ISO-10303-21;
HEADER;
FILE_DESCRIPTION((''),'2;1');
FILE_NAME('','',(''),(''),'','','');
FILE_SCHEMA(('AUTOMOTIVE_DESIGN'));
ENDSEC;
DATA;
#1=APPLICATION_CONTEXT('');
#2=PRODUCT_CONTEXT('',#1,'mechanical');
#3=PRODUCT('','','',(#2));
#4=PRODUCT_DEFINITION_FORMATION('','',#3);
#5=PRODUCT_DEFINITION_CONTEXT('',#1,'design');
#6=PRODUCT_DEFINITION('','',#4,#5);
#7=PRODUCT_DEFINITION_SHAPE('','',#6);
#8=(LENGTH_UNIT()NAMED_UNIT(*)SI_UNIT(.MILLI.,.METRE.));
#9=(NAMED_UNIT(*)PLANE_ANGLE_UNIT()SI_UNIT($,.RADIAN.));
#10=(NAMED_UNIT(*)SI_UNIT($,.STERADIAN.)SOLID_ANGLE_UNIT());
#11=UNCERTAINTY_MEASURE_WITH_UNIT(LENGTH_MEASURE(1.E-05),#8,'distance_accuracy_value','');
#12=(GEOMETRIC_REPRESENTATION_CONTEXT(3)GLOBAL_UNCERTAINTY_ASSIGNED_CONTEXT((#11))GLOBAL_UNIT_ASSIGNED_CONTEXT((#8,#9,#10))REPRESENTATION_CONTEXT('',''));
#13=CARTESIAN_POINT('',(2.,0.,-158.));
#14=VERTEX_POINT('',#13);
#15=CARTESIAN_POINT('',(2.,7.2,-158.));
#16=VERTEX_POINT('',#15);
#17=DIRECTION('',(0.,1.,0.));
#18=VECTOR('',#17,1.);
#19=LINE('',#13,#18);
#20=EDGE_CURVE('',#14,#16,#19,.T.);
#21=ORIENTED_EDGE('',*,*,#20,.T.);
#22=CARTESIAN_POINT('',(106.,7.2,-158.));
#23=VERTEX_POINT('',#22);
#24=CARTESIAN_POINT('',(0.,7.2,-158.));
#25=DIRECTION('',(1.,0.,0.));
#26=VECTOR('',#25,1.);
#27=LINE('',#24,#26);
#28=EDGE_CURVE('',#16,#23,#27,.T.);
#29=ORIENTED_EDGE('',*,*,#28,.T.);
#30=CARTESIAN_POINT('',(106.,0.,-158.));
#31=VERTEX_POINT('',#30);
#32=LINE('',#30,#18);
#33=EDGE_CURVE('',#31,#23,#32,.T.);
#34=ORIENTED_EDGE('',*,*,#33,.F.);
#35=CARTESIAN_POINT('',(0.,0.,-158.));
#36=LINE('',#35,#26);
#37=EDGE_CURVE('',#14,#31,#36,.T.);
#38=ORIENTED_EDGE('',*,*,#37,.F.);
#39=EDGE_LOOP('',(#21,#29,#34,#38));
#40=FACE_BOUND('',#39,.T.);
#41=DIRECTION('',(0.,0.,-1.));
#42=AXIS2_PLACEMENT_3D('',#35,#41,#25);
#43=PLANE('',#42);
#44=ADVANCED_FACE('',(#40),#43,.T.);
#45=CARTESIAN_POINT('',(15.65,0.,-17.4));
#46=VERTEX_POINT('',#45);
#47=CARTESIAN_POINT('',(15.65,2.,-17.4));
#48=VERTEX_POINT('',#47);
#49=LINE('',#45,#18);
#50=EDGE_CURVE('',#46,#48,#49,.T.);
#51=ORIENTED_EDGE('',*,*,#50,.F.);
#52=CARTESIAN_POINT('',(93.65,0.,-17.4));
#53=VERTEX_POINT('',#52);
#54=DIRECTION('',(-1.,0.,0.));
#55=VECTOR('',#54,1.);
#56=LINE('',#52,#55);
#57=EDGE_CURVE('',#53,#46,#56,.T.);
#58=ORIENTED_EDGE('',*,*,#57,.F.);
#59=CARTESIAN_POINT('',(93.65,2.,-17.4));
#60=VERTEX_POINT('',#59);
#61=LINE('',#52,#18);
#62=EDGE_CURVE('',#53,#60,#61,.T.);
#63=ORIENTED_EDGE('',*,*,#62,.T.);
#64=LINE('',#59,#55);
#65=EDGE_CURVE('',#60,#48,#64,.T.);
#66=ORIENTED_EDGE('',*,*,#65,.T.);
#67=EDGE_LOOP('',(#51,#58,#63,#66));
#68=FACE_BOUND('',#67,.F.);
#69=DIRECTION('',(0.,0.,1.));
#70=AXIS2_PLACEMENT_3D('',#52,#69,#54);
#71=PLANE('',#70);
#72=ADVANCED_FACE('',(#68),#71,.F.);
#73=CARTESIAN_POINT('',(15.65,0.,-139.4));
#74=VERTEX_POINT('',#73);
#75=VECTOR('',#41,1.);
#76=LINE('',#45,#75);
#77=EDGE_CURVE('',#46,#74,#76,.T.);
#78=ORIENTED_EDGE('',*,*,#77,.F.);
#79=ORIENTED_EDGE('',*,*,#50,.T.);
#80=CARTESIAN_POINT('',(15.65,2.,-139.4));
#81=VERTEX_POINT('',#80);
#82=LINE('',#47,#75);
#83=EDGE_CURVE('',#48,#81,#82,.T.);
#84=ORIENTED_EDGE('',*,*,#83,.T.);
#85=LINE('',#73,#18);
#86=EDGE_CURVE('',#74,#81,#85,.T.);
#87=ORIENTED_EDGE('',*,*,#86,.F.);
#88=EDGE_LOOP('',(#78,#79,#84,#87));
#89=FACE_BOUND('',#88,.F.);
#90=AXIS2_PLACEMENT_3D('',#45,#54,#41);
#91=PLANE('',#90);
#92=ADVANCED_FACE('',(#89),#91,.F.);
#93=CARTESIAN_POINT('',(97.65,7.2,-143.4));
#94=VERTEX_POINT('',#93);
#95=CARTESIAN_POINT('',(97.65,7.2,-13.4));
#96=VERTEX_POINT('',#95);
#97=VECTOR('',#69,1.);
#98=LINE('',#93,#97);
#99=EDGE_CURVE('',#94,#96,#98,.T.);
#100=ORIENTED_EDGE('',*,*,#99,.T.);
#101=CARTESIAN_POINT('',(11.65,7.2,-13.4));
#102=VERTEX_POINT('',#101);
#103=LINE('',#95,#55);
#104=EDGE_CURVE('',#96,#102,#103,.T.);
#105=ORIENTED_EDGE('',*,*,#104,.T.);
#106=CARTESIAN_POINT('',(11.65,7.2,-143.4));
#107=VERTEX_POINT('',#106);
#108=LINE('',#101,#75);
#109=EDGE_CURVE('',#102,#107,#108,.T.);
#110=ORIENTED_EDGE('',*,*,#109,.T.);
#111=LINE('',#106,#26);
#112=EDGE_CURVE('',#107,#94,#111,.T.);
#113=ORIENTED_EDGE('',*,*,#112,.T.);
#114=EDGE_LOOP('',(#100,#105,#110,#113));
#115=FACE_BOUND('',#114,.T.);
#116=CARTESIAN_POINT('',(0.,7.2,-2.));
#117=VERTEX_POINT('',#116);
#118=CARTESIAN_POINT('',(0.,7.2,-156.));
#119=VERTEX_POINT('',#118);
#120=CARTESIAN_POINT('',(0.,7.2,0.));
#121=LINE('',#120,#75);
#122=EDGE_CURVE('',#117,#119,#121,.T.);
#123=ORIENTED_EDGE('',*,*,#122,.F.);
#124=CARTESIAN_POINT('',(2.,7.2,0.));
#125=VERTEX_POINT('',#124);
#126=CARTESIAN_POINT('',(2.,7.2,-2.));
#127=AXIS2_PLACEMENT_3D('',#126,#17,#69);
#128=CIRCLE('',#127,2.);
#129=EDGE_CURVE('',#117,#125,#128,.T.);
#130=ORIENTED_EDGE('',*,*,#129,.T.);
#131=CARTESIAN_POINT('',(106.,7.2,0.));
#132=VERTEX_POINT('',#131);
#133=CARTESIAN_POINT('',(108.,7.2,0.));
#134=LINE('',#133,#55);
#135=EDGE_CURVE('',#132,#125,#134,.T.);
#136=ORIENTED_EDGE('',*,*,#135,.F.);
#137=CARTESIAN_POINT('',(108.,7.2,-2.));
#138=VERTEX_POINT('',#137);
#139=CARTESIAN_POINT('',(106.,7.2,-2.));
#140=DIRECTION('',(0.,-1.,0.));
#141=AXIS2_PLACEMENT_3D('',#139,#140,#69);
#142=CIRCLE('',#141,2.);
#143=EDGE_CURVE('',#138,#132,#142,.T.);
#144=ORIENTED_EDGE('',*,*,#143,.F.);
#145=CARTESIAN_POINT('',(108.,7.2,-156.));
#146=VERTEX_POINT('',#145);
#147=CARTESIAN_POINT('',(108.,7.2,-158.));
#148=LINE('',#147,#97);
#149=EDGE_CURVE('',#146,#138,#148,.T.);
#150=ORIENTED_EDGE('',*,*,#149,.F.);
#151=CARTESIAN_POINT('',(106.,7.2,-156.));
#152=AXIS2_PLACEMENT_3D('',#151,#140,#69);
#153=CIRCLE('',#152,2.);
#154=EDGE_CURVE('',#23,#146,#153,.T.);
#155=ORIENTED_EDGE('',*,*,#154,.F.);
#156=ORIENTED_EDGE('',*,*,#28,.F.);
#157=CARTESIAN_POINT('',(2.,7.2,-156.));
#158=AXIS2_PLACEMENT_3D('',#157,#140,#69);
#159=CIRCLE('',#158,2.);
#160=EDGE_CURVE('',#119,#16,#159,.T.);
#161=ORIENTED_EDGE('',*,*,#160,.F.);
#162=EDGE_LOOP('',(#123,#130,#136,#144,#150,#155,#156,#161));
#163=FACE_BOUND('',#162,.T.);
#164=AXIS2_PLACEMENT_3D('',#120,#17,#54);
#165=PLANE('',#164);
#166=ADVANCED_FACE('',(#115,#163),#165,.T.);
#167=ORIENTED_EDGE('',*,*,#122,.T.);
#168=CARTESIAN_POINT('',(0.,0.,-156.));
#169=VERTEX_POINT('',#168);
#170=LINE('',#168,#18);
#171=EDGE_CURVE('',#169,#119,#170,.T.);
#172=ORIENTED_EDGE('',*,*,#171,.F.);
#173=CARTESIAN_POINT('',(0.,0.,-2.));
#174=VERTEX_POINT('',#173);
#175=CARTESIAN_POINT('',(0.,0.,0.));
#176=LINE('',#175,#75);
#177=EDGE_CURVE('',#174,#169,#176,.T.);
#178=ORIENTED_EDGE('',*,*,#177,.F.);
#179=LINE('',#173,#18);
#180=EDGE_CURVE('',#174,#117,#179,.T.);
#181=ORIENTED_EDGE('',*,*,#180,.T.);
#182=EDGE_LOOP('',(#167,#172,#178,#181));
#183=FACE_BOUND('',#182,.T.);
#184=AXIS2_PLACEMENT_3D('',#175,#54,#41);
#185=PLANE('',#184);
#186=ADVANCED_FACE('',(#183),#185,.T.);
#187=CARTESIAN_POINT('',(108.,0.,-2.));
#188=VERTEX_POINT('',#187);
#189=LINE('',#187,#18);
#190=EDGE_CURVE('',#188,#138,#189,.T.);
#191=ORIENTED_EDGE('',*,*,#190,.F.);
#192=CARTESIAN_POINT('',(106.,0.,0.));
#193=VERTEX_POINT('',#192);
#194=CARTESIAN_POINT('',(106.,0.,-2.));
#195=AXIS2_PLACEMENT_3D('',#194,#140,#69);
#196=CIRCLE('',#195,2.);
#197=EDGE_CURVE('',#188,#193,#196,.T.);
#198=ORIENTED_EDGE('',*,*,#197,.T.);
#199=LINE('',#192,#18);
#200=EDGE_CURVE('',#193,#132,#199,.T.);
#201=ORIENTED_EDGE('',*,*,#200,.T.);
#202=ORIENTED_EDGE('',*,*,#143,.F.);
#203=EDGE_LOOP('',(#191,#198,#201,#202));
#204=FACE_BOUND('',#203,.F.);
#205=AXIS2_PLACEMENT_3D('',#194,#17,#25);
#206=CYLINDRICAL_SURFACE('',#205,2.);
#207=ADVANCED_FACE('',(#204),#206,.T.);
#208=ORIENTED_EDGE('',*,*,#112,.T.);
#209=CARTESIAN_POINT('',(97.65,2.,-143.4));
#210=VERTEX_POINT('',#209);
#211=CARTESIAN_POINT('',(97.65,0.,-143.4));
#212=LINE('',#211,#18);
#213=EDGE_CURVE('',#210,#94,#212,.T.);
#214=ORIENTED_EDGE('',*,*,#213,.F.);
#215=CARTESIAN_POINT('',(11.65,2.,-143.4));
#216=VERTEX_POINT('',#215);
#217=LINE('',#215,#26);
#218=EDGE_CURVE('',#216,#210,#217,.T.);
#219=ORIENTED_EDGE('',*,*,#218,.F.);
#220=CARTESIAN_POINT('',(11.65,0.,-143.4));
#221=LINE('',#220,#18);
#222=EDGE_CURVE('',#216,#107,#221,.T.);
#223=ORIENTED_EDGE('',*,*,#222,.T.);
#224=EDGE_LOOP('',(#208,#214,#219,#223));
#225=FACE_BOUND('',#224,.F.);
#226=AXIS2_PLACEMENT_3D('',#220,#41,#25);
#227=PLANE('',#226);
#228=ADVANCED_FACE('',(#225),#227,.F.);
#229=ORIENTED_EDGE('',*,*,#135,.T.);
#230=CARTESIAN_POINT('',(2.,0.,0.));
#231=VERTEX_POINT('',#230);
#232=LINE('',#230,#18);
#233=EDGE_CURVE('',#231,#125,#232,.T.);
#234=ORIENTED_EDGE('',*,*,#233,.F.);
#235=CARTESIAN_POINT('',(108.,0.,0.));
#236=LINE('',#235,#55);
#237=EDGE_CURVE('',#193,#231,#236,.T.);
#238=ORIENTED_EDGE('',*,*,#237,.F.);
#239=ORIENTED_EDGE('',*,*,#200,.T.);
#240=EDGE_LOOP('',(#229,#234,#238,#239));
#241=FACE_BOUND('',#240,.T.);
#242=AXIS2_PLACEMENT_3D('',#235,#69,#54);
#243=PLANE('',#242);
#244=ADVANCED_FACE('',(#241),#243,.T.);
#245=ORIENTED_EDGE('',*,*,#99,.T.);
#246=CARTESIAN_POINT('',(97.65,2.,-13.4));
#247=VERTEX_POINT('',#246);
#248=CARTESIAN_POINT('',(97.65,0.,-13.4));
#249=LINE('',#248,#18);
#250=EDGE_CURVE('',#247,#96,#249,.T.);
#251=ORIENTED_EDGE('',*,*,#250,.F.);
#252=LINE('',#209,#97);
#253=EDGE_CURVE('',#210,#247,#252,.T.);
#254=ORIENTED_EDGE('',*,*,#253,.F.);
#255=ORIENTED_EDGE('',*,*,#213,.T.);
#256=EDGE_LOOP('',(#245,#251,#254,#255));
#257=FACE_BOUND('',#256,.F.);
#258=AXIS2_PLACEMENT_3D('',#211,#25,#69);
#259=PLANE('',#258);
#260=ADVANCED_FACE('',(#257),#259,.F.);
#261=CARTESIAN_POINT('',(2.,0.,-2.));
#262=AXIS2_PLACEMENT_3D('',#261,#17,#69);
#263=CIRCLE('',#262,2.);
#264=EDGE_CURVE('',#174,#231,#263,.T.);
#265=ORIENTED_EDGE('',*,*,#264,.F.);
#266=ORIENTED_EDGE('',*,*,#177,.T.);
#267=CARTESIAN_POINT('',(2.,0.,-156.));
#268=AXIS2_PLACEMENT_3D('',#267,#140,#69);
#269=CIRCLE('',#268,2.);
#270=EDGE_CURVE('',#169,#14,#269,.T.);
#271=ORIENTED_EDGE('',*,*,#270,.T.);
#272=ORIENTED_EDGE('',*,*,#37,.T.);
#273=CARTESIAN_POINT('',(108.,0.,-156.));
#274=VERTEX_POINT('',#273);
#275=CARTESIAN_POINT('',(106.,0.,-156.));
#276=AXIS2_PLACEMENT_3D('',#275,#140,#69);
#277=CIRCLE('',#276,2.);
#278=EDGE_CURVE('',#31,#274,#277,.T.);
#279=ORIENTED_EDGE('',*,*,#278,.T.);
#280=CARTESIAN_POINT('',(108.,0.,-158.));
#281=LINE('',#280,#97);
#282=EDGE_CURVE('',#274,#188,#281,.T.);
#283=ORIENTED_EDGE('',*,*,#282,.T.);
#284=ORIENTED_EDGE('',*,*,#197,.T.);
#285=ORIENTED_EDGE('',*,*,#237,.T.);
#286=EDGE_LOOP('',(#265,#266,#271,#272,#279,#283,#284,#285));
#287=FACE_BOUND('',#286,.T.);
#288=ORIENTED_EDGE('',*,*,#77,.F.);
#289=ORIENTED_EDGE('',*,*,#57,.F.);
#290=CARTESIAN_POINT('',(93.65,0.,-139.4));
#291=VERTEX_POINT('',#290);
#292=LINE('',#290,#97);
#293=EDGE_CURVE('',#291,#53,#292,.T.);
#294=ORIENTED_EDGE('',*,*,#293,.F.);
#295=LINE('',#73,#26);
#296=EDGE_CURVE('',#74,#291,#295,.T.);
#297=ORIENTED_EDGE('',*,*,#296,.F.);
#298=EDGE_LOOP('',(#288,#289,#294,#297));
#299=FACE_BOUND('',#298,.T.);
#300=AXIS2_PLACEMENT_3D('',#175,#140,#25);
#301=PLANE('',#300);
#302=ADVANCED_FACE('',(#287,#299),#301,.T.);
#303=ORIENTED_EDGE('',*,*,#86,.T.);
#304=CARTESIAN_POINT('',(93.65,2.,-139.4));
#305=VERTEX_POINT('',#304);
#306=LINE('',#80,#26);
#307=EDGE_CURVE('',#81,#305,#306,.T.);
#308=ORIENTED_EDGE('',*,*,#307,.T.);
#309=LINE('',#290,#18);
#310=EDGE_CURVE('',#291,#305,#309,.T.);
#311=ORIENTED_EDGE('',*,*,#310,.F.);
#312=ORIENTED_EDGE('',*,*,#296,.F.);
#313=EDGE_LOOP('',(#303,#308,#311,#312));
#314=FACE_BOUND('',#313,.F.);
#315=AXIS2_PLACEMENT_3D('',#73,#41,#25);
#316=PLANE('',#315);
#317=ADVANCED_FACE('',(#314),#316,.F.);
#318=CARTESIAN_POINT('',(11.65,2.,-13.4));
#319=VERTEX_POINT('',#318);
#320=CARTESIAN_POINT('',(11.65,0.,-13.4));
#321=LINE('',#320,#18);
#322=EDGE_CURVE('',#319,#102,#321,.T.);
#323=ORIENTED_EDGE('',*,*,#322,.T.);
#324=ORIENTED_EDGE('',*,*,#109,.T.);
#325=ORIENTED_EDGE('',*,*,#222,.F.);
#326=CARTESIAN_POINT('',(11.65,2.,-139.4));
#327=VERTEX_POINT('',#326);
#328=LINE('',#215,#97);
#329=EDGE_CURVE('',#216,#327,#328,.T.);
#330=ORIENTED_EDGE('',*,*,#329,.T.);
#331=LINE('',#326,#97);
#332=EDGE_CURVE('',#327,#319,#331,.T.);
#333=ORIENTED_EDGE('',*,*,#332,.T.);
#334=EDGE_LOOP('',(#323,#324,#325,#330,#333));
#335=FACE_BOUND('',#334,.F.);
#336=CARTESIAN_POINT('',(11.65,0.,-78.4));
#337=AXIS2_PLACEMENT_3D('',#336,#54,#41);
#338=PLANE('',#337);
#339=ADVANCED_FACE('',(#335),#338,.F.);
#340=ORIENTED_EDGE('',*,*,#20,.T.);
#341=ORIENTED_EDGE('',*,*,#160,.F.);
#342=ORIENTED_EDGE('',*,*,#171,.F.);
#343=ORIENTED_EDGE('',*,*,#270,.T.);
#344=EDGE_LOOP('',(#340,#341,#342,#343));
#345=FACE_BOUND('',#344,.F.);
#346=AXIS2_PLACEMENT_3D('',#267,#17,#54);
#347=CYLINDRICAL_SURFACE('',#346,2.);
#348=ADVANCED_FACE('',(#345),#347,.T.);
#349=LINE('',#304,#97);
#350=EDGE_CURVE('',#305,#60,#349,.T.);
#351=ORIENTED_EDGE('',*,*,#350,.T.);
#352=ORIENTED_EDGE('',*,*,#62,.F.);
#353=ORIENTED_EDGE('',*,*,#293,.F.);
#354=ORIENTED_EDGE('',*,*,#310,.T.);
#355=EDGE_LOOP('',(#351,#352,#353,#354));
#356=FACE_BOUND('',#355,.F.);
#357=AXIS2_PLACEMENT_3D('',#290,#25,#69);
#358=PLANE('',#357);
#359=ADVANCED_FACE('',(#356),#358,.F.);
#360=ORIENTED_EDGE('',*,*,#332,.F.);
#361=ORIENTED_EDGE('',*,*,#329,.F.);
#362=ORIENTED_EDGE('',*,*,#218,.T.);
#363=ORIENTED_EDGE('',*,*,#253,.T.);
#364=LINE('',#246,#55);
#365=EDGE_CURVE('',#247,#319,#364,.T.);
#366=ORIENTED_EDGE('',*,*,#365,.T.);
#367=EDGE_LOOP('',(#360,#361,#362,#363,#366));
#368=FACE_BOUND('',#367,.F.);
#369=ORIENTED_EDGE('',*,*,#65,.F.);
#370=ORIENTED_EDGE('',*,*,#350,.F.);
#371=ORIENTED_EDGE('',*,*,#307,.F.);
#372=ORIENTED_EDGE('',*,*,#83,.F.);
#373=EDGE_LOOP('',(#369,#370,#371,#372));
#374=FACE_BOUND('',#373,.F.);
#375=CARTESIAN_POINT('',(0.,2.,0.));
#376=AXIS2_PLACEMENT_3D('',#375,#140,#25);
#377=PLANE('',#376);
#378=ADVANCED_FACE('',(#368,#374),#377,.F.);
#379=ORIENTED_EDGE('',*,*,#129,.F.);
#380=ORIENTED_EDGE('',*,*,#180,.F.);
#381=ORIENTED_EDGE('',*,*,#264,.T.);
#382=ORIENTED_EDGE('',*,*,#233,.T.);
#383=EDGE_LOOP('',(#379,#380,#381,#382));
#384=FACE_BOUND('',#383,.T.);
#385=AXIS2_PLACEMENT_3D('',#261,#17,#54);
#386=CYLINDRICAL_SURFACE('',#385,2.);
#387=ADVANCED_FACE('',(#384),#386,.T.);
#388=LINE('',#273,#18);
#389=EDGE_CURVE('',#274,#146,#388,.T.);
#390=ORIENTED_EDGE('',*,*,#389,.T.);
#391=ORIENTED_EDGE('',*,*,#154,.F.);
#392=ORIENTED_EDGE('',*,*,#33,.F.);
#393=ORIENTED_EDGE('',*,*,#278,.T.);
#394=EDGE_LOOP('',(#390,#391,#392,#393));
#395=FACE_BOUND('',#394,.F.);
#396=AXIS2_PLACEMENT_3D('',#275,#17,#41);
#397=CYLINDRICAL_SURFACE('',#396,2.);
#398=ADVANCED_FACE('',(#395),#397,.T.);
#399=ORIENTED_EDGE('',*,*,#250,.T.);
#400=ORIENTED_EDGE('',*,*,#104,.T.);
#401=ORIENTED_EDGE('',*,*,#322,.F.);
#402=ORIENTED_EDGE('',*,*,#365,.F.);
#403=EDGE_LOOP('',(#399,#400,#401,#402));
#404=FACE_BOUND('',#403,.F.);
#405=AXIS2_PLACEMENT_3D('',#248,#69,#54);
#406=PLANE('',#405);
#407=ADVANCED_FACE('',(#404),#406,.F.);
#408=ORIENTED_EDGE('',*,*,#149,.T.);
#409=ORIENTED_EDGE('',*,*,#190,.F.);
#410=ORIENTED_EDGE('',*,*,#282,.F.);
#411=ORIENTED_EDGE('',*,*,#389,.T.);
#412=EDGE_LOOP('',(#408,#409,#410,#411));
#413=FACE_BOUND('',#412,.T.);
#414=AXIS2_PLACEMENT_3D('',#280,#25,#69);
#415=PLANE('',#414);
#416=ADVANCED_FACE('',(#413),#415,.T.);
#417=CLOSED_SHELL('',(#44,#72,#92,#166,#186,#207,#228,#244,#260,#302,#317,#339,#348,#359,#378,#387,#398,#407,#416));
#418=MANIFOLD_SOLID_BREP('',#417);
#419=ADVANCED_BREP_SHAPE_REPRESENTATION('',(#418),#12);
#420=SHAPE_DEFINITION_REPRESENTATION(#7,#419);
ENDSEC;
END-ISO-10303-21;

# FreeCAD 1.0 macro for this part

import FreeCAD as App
import Part
import Sketcher
from FreeCAD import Vector
Q = App.Units.Quantity


def edges_at(feature, points):
    """Names of the edges that pass closest to the given points."""
    edges = feature.Shape.Edges
    near = lambda p: min(range(len(edges)), key=lambda i: edges[i].distToShape(Part.Vertex(*p))[0])
    return sorted({f"Edge{near(p) + 1}" for p in points})

doc = App.newDocument("Part")
body = doc.addObject("PartDesign::Body", "Body")

sketch1 = doc.addObject("Sketcher::SketchObject", "Sketch")
body.addObject(sketch1)
sketch1.AttachmentSupport = (doc.XZ_Plane, [""])
sketch1.MapMode = "FlatFace"
sketch1.addGeometry([
    Part.LineSegment(Vector(0, -158, 0), Vector(0, 0, 0)),
    Part.LineSegment(Vector(0, 0, 0), Vector(108, 0, 0)),
    Part.LineSegment(Vector(108, 0, 0), Vector(108, -158, 0)),
    Part.LineSegment(Vector(108, -158, 0), Vector(0, -158, 0)),
    Part.LineSegment(Vector(12, -13, 0), Vector(12, -143, 0)),
    Part.LineSegment(Vector(12, -143, 0), Vector(98, -143, 0)),
    Part.LineSegment(Vector(98, -143, 0), Vector(98, -13, 0)),
    Part.LineSegment(Vector(98, -13, 0), Vector(12, -13, 0)),
], False)
sketch1.addConstraint([
    Sketcher.Constraint("Coincident", 0, 2, 1, 1),
    Sketcher.Constraint("Coincident", 1, 2, 2, 1),
    Sketcher.Constraint("Coincident", 2, 2, 3, 1),
    Sketcher.Constraint("Coincident", 3, 2, 0, 1),
    Sketcher.Constraint("Coincident", 4, 2, 5, 1),
    Sketcher.Constraint("Coincident", 5, 2, 6, 1),
    Sketcher.Constraint("Coincident", 6, 2, 7, 1),
    Sketcher.Constraint("Coincident", 7, 2, 4, 1),
    Sketcher.Constraint("Vertical", 0),
    Sketcher.Constraint("Horizontal", 1),
    Sketcher.Constraint("Vertical", 2),
    Sketcher.Constraint("Horizontal", 3),
    Sketcher.Constraint("Vertical", 4),
    Sketcher.Constraint("Horizontal", 5),
    Sketcher.Constraint("Vertical", 6),
    Sketcher.Constraint("Horizontal", 7),
    Sketcher.Constraint("Coincident", 0, 2, -1, 1),
    Sketcher.Constraint("DistanceX", 1, 1, 1, 2, Q("108 mm")),
    Sketcher.Constraint("DistanceX", 5, 1, 5, 2, Q("86 mm")),
    Sketcher.Constraint("DistanceY", 0, 1, 0, 2, Q("158 mm")),
    Sketcher.Constraint("DistanceY", 4, 2, 4, 1, Q("130 mm")),
    Sketcher.Constraint("DistanceY", 4, 2, -1, 1, Q("143.4 mm")),
    Sketcher.Constraint("DistanceX", -1, 1, 4, 2, Q("11.65 mm")),
])
pad1 = doc.addObject("PartDesign::Pad", "Pad")
body.addObject(pad1)
pad1.Profile = sketch1
pad1.Length = 7.2
pad1.Reversed = True
doc.recompute()

fillet = doc.addObject("PartDesign::Fillet", "Fillet")
body.addObject(fillet)
fillet.Base = (pad1, edges_at(pad1, [
    (108, 3.6, 0),
    (108, 3.6, -158),
    (0, 3.6, 0),
    (0, 3.6, -158),
]))
fillet.Radius = 2

sketch2 = doc.addObject("Sketcher::SketchObject", "Sketch001")
body.addObject(sketch2)
sketch2.AttachmentSupport = (doc.XZ_Plane, [""])
sketch2.MapMode = "FlatFace"
sketch2.addGeometry([
    Part.LineSegment(Vector(11.7, -139.4, 0), Vector(11.7, -143.4, 0)),
    Part.LineSegment(Vector(11.7, -143.4, 0), Vector(97.7, -143.4, 0)),
    Part.LineSegment(Vector(97.7, -143.4, 0), Vector(97.7, -13.4, 0)),
    Part.LineSegment(Vector(97.7, -13.4, 0), Vector(11.7, -13.4, 0)),
    Part.LineSegment(Vector(11.7, -13.4, 0), Vector(11.7, -139.4, 0)),
    Part.LineSegment(Vector(93.7, -139.4, 0), Vector(15.7, -139.4, 0)),
    Part.LineSegment(Vector(15.7, -139.4, 0), Vector(15.7, -17.4, 0)),
    Part.LineSegment(Vector(15.7, -17.4, 0), Vector(93.7, -17.4, 0)),
    Part.LineSegment(Vector(93.7, -17.4, 0), Vector(93.7, -139.4, 0)),
], False)
sketch2.addConstraint([
    Sketcher.Constraint("Coincident", 0, 2, 1, 1),
    Sketcher.Constraint("Coincident", 1, 2, 2, 1),
    Sketcher.Constraint("Coincident", 2, 2, 3, 1),
    Sketcher.Constraint("Coincident", 3, 2, 4, 1),
    Sketcher.Constraint("Coincident", 4, 2, 0, 1),
    Sketcher.Constraint("Coincident", 5, 2, 6, 1),
    Sketcher.Constraint("Coincident", 6, 2, 7, 1),
    Sketcher.Constraint("Coincident", 7, 2, 8, 1),
    Sketcher.Constraint("Coincident", 8, 2, 5, 1),
    Sketcher.Constraint("Vertical", 0),
    Sketcher.Constraint("Horizontal", 1),
    Sketcher.Constraint("Vertical", 2),
    Sketcher.Constraint("Horizontal", 3),
    Sketcher.Constraint("Vertical", 4),
    Sketcher.Constraint("Horizontal", 5),
    Sketcher.Constraint("Vertical", 6),
    Sketcher.Constraint("Horizontal", 7),
    Sketcher.Constraint("Vertical", 8),
    Sketcher.Constraint("Horizontal", 4, 2, 5, 2),
    Sketcher.Constraint("DistanceX", 5, 2, 5, 1, Q("78 mm")),
    Sketcher.Constraint("DistanceY", 0, 2, 0, 1, Q("4 mm")),
    Sketcher.Constraint("DistanceY", 6, 1, 6, 2, Q("122 mm")),
    Sketcher.Constraint("DistanceX", 4, 2, 5, 2, Q("4 mm")),
    Sketcher.Constraint("DistanceY", 6, 2, 3, 2, Q("4 mm")),
    Sketcher.Constraint("DistanceX", 7, 2, 2, 2, Q("4 mm")),
    Sketcher.Constraint("DistanceY", 0, 2, -1, 1, Q("143.4 mm")),
    Sketcher.Constraint("DistanceX", -1, 1, 0, 2, Q("11.65 mm")),
])
pad2 = doc.addObject("PartDesign::Pad", "Pad001")
body.addObject(pad2)
pad2.Profile = sketch2
pad2.Length = 2
pad2.Reversed = True

doc.recompute()
